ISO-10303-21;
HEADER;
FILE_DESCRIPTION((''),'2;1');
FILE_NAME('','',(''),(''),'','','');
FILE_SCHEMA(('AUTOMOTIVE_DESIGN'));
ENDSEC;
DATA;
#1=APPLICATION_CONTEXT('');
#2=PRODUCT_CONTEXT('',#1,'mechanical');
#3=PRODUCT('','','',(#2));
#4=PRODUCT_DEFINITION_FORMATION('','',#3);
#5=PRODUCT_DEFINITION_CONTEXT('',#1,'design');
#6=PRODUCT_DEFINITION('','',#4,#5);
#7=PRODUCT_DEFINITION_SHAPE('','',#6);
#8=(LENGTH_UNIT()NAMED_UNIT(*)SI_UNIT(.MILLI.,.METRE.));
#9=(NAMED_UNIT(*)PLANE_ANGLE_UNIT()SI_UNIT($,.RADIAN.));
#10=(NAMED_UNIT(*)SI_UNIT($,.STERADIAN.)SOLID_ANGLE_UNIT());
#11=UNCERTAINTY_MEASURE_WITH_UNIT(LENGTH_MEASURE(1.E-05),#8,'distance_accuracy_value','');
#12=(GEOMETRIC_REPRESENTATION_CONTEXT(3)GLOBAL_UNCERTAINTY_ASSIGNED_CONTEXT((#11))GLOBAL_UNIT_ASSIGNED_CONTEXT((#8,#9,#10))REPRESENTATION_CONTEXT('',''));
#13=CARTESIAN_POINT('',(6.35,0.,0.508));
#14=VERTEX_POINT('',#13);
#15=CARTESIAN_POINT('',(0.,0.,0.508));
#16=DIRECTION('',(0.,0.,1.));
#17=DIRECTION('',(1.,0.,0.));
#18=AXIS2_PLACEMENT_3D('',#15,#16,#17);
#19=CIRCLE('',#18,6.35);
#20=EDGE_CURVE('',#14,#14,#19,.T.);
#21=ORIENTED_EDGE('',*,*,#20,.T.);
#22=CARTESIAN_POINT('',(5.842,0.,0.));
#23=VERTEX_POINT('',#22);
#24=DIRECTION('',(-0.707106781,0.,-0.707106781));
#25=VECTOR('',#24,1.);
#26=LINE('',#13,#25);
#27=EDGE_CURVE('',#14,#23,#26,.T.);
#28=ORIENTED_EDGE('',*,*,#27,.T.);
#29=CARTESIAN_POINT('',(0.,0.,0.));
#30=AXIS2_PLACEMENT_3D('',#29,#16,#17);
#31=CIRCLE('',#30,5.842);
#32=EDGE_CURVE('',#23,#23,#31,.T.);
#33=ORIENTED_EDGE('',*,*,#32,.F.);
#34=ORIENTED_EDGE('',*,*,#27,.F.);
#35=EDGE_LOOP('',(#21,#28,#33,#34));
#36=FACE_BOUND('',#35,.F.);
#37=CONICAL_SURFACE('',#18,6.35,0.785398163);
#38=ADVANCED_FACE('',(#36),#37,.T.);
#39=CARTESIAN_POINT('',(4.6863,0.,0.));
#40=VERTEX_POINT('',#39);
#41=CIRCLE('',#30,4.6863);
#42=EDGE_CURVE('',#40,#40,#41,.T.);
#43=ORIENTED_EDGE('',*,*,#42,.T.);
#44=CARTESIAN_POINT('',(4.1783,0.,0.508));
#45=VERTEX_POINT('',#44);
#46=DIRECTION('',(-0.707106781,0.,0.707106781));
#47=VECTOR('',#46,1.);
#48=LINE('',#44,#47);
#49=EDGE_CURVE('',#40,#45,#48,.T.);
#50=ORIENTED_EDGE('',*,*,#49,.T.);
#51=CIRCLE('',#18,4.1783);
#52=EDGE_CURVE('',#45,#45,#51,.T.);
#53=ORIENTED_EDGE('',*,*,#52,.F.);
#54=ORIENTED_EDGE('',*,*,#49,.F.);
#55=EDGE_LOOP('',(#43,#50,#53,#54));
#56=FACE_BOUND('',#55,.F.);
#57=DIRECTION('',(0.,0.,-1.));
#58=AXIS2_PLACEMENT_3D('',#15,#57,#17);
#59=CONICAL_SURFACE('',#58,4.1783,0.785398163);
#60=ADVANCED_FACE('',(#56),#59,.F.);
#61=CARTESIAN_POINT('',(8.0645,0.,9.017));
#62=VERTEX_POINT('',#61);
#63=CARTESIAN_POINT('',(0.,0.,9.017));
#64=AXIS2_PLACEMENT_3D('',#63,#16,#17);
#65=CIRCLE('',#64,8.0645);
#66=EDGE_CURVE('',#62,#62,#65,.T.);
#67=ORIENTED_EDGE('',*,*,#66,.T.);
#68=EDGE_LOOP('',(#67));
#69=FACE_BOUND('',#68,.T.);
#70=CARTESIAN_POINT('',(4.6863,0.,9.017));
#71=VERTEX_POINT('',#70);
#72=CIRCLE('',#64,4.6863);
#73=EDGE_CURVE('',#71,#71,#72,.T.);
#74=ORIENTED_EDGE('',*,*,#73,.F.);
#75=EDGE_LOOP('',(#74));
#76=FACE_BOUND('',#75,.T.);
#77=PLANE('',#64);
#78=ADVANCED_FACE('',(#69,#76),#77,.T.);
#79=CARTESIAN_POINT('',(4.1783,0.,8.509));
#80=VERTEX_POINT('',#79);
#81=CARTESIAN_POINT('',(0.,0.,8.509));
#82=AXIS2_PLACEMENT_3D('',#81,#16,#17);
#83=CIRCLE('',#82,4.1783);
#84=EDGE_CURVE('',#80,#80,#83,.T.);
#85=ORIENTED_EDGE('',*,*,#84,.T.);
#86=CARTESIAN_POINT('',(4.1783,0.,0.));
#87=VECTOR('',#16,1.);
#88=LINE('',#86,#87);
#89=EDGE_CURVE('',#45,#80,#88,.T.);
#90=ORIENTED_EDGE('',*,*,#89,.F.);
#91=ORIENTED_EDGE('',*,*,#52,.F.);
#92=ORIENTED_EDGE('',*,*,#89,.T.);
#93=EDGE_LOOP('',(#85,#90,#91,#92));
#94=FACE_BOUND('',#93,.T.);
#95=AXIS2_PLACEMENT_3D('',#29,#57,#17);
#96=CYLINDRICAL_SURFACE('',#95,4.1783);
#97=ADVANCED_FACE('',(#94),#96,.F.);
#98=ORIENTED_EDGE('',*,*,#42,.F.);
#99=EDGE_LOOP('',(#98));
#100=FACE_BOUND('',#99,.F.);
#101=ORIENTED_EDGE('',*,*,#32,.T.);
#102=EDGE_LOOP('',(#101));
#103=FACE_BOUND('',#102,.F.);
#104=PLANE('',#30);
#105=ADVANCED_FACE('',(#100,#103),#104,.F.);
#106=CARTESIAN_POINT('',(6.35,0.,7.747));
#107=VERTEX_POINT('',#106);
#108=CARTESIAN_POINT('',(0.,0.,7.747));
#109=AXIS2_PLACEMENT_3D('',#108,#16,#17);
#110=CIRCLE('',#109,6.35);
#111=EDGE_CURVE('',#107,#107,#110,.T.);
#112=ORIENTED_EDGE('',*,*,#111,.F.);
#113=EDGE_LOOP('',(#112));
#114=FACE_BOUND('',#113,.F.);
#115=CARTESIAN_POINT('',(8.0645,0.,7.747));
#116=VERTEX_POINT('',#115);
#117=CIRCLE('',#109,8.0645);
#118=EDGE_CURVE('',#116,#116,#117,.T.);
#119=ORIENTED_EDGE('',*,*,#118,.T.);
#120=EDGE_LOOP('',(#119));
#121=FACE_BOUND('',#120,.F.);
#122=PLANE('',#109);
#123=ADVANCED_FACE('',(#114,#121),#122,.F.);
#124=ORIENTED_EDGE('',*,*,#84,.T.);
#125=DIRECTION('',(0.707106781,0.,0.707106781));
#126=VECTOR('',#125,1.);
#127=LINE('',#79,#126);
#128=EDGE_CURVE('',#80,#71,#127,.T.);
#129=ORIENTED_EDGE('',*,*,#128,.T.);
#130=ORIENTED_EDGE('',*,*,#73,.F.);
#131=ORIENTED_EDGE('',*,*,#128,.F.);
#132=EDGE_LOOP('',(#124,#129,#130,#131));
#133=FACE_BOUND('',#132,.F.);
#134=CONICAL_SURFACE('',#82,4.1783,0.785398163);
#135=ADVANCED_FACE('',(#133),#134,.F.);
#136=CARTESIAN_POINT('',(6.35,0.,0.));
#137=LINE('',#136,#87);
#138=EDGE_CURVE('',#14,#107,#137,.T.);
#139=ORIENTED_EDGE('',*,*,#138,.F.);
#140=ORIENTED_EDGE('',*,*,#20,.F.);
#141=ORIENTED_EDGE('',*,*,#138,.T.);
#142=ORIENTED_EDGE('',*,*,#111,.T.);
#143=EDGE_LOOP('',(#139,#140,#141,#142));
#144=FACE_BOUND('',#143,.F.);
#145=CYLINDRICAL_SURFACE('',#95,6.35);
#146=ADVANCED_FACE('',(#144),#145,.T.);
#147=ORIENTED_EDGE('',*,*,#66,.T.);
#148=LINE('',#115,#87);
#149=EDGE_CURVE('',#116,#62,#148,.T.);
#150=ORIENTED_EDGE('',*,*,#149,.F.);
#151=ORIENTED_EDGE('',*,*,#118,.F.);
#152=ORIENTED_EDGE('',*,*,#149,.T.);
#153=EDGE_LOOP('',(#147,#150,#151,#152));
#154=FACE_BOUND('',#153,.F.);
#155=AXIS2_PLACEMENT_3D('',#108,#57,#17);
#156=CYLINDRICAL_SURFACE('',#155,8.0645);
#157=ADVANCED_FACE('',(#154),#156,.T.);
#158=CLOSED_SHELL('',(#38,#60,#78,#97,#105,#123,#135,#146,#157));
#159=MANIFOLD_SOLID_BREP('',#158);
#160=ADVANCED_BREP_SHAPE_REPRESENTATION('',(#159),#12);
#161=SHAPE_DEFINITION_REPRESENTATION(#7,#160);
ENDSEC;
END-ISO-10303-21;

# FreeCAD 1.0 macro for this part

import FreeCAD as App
import Part
import Sketcher
Q = App.Units.Quantity


def edges_at(feature, points):
    """Names of the edges that pass closest to the given points."""
    edges = feature.Shape.Edges
    near = lambda p: min(range(len(edges)), key=lambda i: edges[i].distToShape(Part.Vertex(*p))[0])
    return sorted({f"Edge{near(p) + 1}" for p in points})

doc = App.newDocument("Part")
body = doc.addObject("PartDesign::Body", "Body")

# Sketch on XY plane
sketch1 = doc.addObject("Sketcher::SketchObject", "Sketch")
body.addObject(sketch1)
sketch1.AttachmentSupport = (doc.XY_Plane, [""])
sketch1.MapMode = "FlatFace"
sketch1.addGeometry([
    Part.Circle(App.Vector(0, 0, 0), App.Vector(0, 0, 1), 6.35),
    Part.Circle(App.Vector(0, 0, 0), App.Vector(0, 0, 1), 4.1783),
], False)
sketch1.addConstraint([
    Sketcher.Constraint("Coincident", 0, 3, -1, 1),
    Sketcher.Constraint("Coincident", 1, 3, -1, 1),
    Sketcher.Constraint("Diameter", 0, Q("0.5 in")),
    Sketcher.Constraint("Diameter", 1, Q("0.329 in")),
])
pad1 = doc.addObject("PartDesign::Pad", "Pad")
body.addObject(pad1)
pad1.Profile = sketch1
pad1.Length = Q("0.305 in")

# Sketch on XY plane
sketch2 = doc.addObject("Sketcher::SketchObject", "Sketch001")
body.addObject(sketch2)
sketch2.AttachmentSupport = (doc.XY_Plane, [""])
sketch2.MapMode = "FlatFace"
sketch2.AttachmentOffset = App.Placement(App.Vector(0, 0, 0.305 * 25.4), App.Rotation())
sketch2.addGeometry([
    Part.Circle(App.Vector(0, 0, 0), App.Vector(0, 0, 1), 8.0645),
    Part.Circle(App.Vector(0, 0, 0), App.Vector(0, 0, 1), 4.1783),
], False)
sketch2.addConstraint([
    Sketcher.Constraint("Coincident", 0, 3, -1, 1),
    Sketcher.Constraint("Coincident", 1, 3, -1, 1),
    Sketcher.Constraint("Diameter", 0, Q("0.635 in")),
    Sketcher.Constraint("Diameter", 1, Q("0.329 in")),
])
pad2 = doc.addObject("PartDesign::Pad", "Pad001")
body.addObject(pad2)
pad2.Profile = sketch2
pad2.Length = Q("0.05 in")
doc.recompute()

chamfer = doc.addObject("PartDesign::Chamfer", "Chamfer")
body.addObject(chamfer)
chamfer.Base = (pad2, edges_at(pad2, [(-4.178, 0, 0), (-6.35, 0, 0), (-4.178, 0, 9.017)]))
chamfer.Size = Q("0.02 in")

doc.recompute()
